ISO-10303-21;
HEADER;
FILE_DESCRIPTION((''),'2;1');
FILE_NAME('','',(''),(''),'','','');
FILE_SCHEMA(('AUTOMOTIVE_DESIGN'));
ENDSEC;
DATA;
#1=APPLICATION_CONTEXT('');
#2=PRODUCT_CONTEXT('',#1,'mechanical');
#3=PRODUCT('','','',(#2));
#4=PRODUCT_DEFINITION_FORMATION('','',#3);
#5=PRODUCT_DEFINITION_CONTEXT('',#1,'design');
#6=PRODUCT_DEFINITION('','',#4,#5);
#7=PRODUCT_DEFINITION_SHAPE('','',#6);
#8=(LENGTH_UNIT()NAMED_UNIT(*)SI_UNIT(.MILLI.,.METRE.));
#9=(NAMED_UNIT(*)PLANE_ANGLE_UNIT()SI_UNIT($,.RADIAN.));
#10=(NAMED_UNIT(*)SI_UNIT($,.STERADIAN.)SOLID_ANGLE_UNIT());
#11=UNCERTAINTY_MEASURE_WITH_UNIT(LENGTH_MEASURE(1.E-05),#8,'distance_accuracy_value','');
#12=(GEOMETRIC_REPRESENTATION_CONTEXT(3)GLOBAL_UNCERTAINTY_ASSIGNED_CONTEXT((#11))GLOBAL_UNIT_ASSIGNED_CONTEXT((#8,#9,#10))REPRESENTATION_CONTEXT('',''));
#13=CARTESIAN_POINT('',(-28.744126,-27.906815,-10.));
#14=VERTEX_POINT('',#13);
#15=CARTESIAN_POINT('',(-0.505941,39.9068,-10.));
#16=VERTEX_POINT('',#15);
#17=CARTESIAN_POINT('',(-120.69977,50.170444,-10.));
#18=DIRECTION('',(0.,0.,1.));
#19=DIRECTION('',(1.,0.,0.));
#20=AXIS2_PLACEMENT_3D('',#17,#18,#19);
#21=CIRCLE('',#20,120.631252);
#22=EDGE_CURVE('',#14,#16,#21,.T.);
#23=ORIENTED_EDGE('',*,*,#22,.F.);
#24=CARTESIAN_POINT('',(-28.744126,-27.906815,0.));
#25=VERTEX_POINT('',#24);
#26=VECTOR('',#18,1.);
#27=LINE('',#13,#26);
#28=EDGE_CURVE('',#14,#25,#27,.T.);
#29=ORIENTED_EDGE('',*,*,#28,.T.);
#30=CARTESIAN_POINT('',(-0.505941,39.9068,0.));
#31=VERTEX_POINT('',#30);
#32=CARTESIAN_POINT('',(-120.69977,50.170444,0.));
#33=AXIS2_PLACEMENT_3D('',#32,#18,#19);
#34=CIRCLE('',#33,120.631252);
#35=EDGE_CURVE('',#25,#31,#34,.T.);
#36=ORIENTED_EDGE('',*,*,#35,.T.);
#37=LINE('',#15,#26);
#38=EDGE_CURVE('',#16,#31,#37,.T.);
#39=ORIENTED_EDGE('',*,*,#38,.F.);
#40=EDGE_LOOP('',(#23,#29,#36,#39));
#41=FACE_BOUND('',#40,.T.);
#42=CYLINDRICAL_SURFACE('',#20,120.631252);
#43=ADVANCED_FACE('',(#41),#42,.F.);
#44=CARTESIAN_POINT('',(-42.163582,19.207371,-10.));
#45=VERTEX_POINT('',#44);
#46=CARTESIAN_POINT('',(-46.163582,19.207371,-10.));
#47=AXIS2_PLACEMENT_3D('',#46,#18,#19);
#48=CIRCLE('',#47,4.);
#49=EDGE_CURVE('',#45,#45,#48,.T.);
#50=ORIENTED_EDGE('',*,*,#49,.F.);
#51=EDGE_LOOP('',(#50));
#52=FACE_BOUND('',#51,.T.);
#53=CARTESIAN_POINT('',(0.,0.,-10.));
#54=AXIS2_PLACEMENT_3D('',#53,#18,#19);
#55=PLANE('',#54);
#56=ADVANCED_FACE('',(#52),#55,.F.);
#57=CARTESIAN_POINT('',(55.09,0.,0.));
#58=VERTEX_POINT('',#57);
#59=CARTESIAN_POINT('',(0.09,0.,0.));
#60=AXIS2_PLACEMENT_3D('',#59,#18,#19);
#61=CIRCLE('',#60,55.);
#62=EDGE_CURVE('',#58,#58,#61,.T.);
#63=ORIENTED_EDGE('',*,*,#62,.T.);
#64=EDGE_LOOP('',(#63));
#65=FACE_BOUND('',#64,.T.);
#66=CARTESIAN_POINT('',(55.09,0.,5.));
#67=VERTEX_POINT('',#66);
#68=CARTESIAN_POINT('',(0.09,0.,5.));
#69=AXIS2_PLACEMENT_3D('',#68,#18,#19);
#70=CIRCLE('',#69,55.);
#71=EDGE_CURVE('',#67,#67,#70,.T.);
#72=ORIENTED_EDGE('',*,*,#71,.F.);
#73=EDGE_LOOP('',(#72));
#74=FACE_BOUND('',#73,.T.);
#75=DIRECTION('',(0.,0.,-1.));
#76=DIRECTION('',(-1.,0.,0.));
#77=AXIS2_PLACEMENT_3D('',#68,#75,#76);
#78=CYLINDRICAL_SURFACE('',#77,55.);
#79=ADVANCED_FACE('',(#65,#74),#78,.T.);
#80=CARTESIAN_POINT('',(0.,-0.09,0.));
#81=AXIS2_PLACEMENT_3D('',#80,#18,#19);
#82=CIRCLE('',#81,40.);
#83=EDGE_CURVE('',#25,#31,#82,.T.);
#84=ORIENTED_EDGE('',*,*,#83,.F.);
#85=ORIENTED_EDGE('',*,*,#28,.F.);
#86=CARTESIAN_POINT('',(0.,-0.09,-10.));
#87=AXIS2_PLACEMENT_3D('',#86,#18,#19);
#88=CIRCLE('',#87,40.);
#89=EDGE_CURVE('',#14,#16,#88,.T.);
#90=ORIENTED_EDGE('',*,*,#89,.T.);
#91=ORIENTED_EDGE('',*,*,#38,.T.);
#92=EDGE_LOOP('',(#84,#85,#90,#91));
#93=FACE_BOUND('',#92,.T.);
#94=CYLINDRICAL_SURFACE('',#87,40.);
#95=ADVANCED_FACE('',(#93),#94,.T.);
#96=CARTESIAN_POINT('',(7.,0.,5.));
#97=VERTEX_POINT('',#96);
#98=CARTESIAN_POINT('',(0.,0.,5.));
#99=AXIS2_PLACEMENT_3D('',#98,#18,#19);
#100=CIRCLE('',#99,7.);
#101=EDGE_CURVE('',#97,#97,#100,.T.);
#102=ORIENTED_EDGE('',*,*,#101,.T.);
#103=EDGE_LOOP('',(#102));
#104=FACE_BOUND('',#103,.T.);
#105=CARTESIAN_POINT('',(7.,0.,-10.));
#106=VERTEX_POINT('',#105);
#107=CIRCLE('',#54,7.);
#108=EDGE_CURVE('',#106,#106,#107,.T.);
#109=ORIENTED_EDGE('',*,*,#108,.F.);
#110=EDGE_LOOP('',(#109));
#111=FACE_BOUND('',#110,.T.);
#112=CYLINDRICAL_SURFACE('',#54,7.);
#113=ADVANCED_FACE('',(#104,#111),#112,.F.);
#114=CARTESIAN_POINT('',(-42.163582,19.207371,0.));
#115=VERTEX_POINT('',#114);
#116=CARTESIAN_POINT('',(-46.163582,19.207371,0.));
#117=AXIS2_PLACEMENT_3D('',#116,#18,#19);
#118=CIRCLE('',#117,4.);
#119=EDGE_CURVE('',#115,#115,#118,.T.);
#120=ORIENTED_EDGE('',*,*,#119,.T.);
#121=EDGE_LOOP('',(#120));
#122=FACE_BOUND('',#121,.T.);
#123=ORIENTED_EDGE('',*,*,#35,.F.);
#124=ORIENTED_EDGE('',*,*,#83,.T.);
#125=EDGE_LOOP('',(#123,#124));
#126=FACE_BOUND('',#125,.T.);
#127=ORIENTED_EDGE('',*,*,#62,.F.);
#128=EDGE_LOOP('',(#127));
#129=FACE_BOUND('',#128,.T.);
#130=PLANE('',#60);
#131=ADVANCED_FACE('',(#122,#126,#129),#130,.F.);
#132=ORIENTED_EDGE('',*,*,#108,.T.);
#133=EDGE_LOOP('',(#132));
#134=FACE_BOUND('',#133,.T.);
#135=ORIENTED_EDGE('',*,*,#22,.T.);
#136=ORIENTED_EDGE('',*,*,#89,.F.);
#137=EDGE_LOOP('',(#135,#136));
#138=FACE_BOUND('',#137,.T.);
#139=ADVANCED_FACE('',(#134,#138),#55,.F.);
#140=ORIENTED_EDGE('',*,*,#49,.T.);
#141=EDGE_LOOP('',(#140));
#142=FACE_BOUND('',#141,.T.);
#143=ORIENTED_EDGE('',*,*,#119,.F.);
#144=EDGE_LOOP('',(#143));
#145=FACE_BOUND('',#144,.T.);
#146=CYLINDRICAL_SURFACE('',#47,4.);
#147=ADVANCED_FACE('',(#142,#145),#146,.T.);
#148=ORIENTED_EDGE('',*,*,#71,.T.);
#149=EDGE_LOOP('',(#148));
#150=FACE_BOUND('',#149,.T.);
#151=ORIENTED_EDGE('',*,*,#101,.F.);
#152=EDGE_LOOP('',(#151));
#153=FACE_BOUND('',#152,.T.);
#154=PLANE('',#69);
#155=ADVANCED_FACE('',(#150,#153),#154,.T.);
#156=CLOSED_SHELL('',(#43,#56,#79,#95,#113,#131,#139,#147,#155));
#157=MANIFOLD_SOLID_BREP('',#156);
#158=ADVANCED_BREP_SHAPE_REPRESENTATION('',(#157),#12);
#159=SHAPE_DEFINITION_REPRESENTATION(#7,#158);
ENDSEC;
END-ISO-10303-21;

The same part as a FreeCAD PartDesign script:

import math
import FreeCAD as App
import Part
import Sketcher
Q = App.Units.Quantity

doc = App.newDocument("Part")
body = doc.addObject("PartDesign::Body", "Body")

sketch1 = body.newObject("Sketcher::SketchObject", "Sketch")
sketch1.AttachmentSupport = (doc.getObject("XY_Plane"), [""])
sketch1.MapMode = "FlatFace"
sketch1.addGeometry(Part.Circle(App.Vector(-46.2, 19.2, 0), App.Vector(0, 0, 1), 4), False)
sketch1.addConstraint(Sketcher.Constraint("Diameter", 0, Q("8 mm")))
sketch1.addConstraint(Sketcher.Constraint("DistanceX", 0, 3, -1, 1, Q("46.163582 mm")))
sketch1.addConstraint(Sketcher.Constraint("DistanceY", -1, 1, 0, 3, Q("19.207371 mm")))
pad1 = body.newObject("PartDesign::Pad", "Pad")
pad1.Profile = sketch1
pad1.Length = 10
pad1.Reversed = True
body2 = doc.addObject("PartDesign::Body", "Body001")

sketch2 = body2.newObject("Sketcher::SketchObject", "Sketch001")
sketch2.AttachmentSupport = (doc.getObject("XY_Plane001"), [""])
sketch2.MapMode = "FlatFace"
sketch2.addGeometry(Part.ArcOfCircle(Part.Circle(App.Vector(0, 0, 0), App.Vector(0, 0, 1), 40), math.radians(-136), math.radians(91)), False)
sketch2.addGeometry(Part.ArcOfCircle(Part.Circle(App.Vector(-121, 50, 0), App.Vector(0, 0, 1), 121), math.radians(-40), math.radians(-5)), False)
sketch2.addConstraint(Sketcher.Constraint("Coincident", 0, 1, 1, 1))
sketch2.addConstraint(Sketcher.Constraint("Coincident", 1, 2, 0, 2))
sketch2.addConstraint(Sketcher.Constraint("PointOnObject", 0, 3, -2))
sketch2.addConstraint(Sketcher.Constraint("Radius", 0, Q("40 mm")))
sketch2.addConstraint(Sketcher.Constraint("DistanceY", 0, 3, -1, 1, Q("0.09 mm")))
sketch2.addConstraint(Sketcher.Constraint("Radius", 1, Q("120.631252 mm")))
sketch2.addConstraint(Sketcher.Constraint("DistanceX", 1, 3, -1, 1, Q("120.69977 mm")))
sketch2.addConstraint(Sketcher.Constraint("DistanceX", 1, 2, -1, 1, Q("0.505941 mm")))
pad2 = body2.newObject("PartDesign::Pad", "Pad001")
pad2.Profile = sketch2
pad2.Length = 10
pad2.Reversed = True
body.AllowCompound = True
doc.recompute()

boolean = body.newObject("PartDesign::Boolean", "Boolean")
boolean.Type = "Fuse"
boolean.addObjects([body2])

sketch3 = body.newObject("Sketcher::SketchObject", "Sketch002")
sketch3.AttachmentSupport = (doc.getObject("XY_Plane"), [""])
sketch3.MapMode = "FlatFace"
sketch3.addGeometry(Part.Circle(App.Vector(0, 0, 0), App.Vector(0, 0, 1), 55), False)
sketch3.addConstraint(Sketcher.Constraint("PointOnObject", 0, 3, -1))
sketch3.addConstraint(Sketcher.Constraint("Diameter", 0, Q("110 mm")))
sketch3.addConstraint(Sketcher.Constraint("DistanceX", -1, 1, 0, 3, Q("0.09 mm")))
pad3 = body.newObject("PartDesign::Pad", "Pad002")
pad3.Profile = sketch3
pad3.Length = 5

sketch4 = body.newObject("Sketcher::SketchObject", "Sketch003")
sketch4.AttachmentSupport = (doc.getObject("XY_Plane"), [""])
sketch4.MapMode = "FlatFace"
sketch4.AttachmentOffset = App.Placement(App.Vector(0, 0, 5), App.Rotation())
sketch4.addGeometry(Part.Circle(App.Vector(0, 0, 0), App.Vector(0, 0, 1), 7), False)
sketch4.addConstraint(Sketcher.Constraint("Coincident", 0, 3, -1, 1))
sketch4.addConstraint(Sketcher.Constraint("Diameter", 0, Q("14 mm")))
pocket1 = body.newObject("PartDesign::Pocket", "Pocket")
pocket1.Profile = sketch4
pocket1.Type = "ThroughAll"

doc.recompute()
